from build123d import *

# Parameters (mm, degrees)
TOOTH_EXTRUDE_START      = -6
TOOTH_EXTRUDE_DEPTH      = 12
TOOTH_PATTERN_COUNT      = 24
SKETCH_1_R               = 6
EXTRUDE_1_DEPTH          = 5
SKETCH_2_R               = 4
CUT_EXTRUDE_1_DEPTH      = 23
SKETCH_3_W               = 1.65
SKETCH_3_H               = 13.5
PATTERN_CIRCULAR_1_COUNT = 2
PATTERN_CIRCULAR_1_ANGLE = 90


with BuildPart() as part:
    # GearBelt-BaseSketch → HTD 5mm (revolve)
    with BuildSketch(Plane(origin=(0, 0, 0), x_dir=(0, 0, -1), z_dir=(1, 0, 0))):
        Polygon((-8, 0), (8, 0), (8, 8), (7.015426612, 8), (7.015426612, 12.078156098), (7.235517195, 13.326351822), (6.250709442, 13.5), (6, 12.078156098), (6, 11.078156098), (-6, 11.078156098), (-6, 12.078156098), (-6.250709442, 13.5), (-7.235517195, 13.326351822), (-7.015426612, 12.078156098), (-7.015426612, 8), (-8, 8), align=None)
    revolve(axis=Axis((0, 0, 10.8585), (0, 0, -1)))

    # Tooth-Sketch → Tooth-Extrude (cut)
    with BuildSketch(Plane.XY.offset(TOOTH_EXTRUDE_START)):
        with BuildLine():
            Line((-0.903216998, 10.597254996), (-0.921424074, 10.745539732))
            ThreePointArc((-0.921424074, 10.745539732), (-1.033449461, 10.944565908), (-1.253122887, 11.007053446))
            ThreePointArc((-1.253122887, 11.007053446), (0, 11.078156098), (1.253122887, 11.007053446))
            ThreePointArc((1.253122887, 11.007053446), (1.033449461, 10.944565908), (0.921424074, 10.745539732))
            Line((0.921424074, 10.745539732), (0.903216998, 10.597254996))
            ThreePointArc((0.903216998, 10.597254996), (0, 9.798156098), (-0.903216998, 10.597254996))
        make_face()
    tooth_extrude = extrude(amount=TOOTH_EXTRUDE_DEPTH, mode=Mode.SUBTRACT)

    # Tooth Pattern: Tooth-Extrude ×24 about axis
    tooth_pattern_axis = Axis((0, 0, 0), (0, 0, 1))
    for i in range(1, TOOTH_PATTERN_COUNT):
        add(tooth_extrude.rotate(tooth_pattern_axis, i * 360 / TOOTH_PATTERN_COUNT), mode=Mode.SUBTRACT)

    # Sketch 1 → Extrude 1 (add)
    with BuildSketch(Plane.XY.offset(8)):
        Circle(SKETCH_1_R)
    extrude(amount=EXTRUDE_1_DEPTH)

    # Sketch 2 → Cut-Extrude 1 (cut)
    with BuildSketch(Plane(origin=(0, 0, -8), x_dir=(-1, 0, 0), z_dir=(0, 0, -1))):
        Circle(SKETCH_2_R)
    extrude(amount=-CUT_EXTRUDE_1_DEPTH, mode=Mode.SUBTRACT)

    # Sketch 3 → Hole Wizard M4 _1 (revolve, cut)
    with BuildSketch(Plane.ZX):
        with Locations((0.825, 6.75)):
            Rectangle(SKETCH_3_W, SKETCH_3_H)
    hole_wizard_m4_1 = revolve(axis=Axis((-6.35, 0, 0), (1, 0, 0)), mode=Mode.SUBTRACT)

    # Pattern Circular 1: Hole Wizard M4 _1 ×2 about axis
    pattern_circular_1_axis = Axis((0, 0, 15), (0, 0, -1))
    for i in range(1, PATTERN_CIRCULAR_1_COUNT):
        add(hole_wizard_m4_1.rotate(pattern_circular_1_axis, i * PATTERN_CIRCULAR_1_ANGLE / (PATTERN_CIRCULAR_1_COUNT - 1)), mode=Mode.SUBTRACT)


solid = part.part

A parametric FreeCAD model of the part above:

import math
import FreeCAD as App
import Part
import Sketcher

V = App.Vector
Q = App.Units.Quantity

doc = App.newDocument("Part")
params = doc.addObject("Spreadsheet::Sheet", "Params")
for row, (alias, value) in enumerate([
    ("sketch1_width", "8 mm"),
    ("sketch1_width2", "1 mm"),
    ("sketch1_height", "16 mm"),
    ("sketch1_height2", "12 mm"),
    ("sketch1_length", "1 mm"),
    ("revolution_angle", "360 deg"),
    ("sketch2_radius", "0.3 mm"),
    ("sketch2_radius2", "0.91 mm"),
    ("pocket1_length", "12 mm"),
    ("sketch3_diameter", "12 mm"),
    ("pad1_length", "5 mm"),
    ("sketch4_diameter", "8 mm"),
    ("pocket2_length", "23 mm"),
    ("sketch5_width", "13.5 mm"),
    ("sketch5_height", "1.65 mm"),
    ("groove_angle", "360 deg"),
], start=1):
    params.set(f"A{row}", alias)
    params.set(f"B{row}", "=" + value)
    params.setAlias(f"B{row}", alias)

body = doc.addObject("PartDesign::Body", "Body")

# Sketch on YZ plane
sketch1 = doc.addObject("Sketcher::SketchObject", "Sketch")
body.addObject(sketch1)
sketch1.AttachmentSupport = (doc.YZ_Plane, [""])
sketch1.MapMode = "FlatFace"
sketch1.addGeometry([
    Part.LineSegment(V(0, 8, 0), V(0, -8, 0)),  # 0
    Part.LineSegment(V(0, -8, 0), V(8, -8, 0)),  # 1
    Part.LineSegment(V(8, -8, 0), V(8, -7, 0)),  # 2
    Part.LineSegment(V(8, -7, 0), V(12.1, -7, 0)),  # 3
    Part.LineSegment(V(12.1, -7, 0), V(13.3, -7.2, 0)),  # 4
    Part.LineSegment(V(13.3, -7.2, 0), V(13.5, -6.3, 0)),  # 5
    Part.LineSegment(V(13.5, -6.3, 0), V(12.1, -6, 0)),  # 6
    Part.LineSegment(V(12.1, -6, 0), V(11.1, -6, 0)),  # 7
    Part.LineSegment(V(11.1, -6, 0), V(11.1, 6, 0)),  # 8
    Part.LineSegment(V(11.1, 6, 0), V(12.1, 6, 0)),  # 9
    Part.LineSegment(V(12.1, 6, 0), V(13.5, 6.3, 0)),  # 10
    Part.LineSegment(V(13.5, 6.3, 0), V(13.3, 7.2, 0)),  # 11
    Part.LineSegment(V(13.3, 7.2, 0), V(12.1, 7, 0)),  # 12
    Part.LineSegment(V(12.1, 7, 0), V(8, 7, 0)),  # 13
    Part.LineSegment(V(8, 7, 0), V(8, 8, 0)),  # 14
    Part.LineSegment(V(8, 8, 0), V(0, 8, 0)),  # 15
], False)
sketch1.addConstraint([
    Sketcher.Constraint("Coincident", 0, 2, 1, 1),
    Sketcher.Constraint("Coincident", 1, 2, 2, 1),
    Sketcher.Constraint("Coincident", 2, 2, 3, 1),
    Sketcher.Constraint("Coincident", 3, 2, 4, 1),
    Sketcher.Constraint("Coincident", 4, 2, 5, 1),
    Sketcher.Constraint("Coincident", 5, 2, 6, 1),
    Sketcher.Constraint("Coincident", 6, 2, 7, 1),
    Sketcher.Constraint("Coincident", 7, 2, 8, 1),
    Sketcher.Constraint("Coincident", 8, 2, 9, 1),
    Sketcher.Constraint("Coincident", 9, 2, 10, 1),
    Sketcher.Constraint("Coincident", 10, 2, 11, 1),
    Sketcher.Constraint("Coincident", 11, 2, 12, 1),
    Sketcher.Constraint("Coincident", 12, 2, 13, 1),
    Sketcher.Constraint("Coincident", 13, 2, 14, 1),
    Sketcher.Constraint("Coincident", 14, 2, 15, 1),
    Sketcher.Constraint("Coincident", 15, 2, 0, 1),
    Sketcher.Constraint("Vertical", 0),
    Sketcher.Constraint("Horizontal", 1),
    Sketcher.Constraint("Vertical", 2),
    Sketcher.Constraint("Horizontal", 3),
    Sketcher.Constraint("Horizontal", 7),
    Sketcher.Constraint("Vertical", 8),
    Sketcher.Constraint("Horizontal", 9),
    Sketcher.Constraint("Horizontal", 13),
    Sketcher.Constraint("Vertical", 14),
    Sketcher.Constraint("Horizontal", 15),
    Sketcher.Constraint("Symmetric", 0, 2, 15, 2, -1, 1),
    Sketcher.Constraint("Symmetric", 6, 2, 9, 2, -1),
    Sketcher.Constraint("Symmetric", 5, 2, 10, 2, -1),
    Sketcher.Constraint("Symmetric", 4, 2, 11, 2, -1),
    Sketcher.Constraint("Symmetric", 3, 2, 12, 2, -1),
    Sketcher.Constraint("Perpendicular", 4, 5),
    Sketcher.Constraint("Perpendicular", 5, 6),
    Sketcher.Constraint("Vertical", 3, 2, 6, 2),
    Sketcher.Constraint("Vertical", 2, 2, 13, 2),
    Sketcher.Constraint("DistanceX", 1, 1, 1, 2, Q("8 mm")),
    Sketcher.Constraint("DistanceX", 7, 2, 7, 1, Q("1 mm")),
    Sketcher.Constraint("DistanceY", 0, 2, 0, 1, Q("16 mm")),
    Sketcher.Constraint("DistanceY", 8, 1, 8, 2, Q("12 mm")),
    Sketcher.Constraint("Angle", 4, Q("-10 deg")),
    Sketcher.Constraint("Distance", 5, Q("1 mm")),
    Sketcher.Constraint("DistanceX", -1, 1, 5, 2, Q("13.5 mm")),
    Sketcher.Constraint("Distance", 4, Q("1.267451 mm")),
])
sketch1.setExpression("Constraints[35]", "Params.sketch1_width")
sketch1.setExpression("Constraints[36]", "Params.sketch1_width2")
sketch1.setExpression("Constraints[37]", "Params.sketch1_height")
sketch1.setExpression("Constraints[38]", "Params.sketch1_height2")
sketch1.setExpression("Constraints[40]", "Params.sketch1_length")
revolution = doc.addObject("PartDesign::Revolution", "Revolution")
body.addObject(revolution)
revolution.Profile = sketch1
revolution.ReferenceAxis = (sketch1, ["V_Axis"])
revolution.setExpression("Angle", "Params.revolution_angle")

# Sketch on XY plane
sketch2 = doc.addObject("Sketcher::SketchObject", "Sketch001")
body.addObject(sketch2)
sketch2.AttachmentSupport = (doc.XY_Plane, [""])
sketch2.MapMode = "FlatFace"
sketch2.AttachmentOffset = App.Placement(V(0, 0, -6), App.Rotation())
sketch2.addGeometry([
    Part.LineSegment(V(-0.92, 10.75, 0), V(-0.9, 10.6, 0)),  # 0
    Part.ArcOfCircle(Part.Circle(V(0, 10.71, 0), V(0, 0, 1), 0.91), math.radians(-173), math.radians(-7)),  # 1
    Part.LineSegment(V(0.9, 10.6, 0), V(0.92, 10.75, 0)),  # 2
    Part.ArcOfCircle(Part.Circle(V(1.22, 10.71, 0), V(0, 0, 1), 0.3), math.radians(84), math.radians(173)),  # 3
    Part.ArcOfCircle(Part.Circle(V(0, 0, 0), V(0, 0, 1), 11.08), math.radians(83.5), math.radians(96.5)),  # 4
    Part.ArcOfCircle(Part.Circle(V(-1.22, 10.71, 0), V(0, 0, 1), 0.3), math.radians(7), math.radians(96)),  # 5
], False)
sketch2.addConstraint([
    Sketcher.Constraint("Tangent", 0, 2, 1, 1),
    Sketcher.Constraint("Tangent", 1, 2, 2, 1),
    Sketcher.Constraint("Tangent", 2, 2, 3, 2),
    Sketcher.Constraint("Tangent", 3, 1, 4, 1),
    Sketcher.Constraint("Tangent", 4, 2, 5, 2),
    Sketcher.Constraint("Tangent", 5, 1, 0, 1),
    Sketcher.Constraint("Coincident", 4, 3, -1, 1),
    Sketcher.Constraint("Equal", 3, 5),
    Sketcher.Constraint("Symmetric", 0, 2, 1, 2, -2),
    Sketcher.Constraint("Radius", 3, Q("0.3 mm")),
    Sketcher.Constraint("Angle", 0, Q("-83 deg")),
    Sketcher.Constraint("Radius", 1, Q("0.91 mm")),
    Sketcher.Constraint("Radius", 4, Q("11.078156 mm")),
    Sketcher.Constraint("Distance", 0, Q("0.149398 mm")),
])
sketch2.setExpression("Constraints[9]", "Params.sketch2_radius")
sketch2.setExpression("Constraints[11]", "Params.sketch2_radius2")
pocket1 = doc.addObject("PartDesign::Pocket", "Pocket")
body.addObject(pocket1)
pocket1.Profile = sketch2
pocket1.setExpression("Length", "Params.pocket1_length")
pocket1.Reversed = True
doc.recompute()

polarpattern = doc.addObject("PartDesign::PolarPattern", "PolarPattern")
body.addObject(polarpattern)
polarpattern.Originals = [pocket1]
polarpattern.Axis = (doc.Z_Axis, [""])
polarpattern.Angle = 360
polarpattern.Occurrences = 24
body.Tip = polarpattern

# Sketch on XY plane
sketch3 = doc.addObject("Sketcher::SketchObject", "Sketch002")
body.addObject(sketch3)
sketch3.AttachmentSupport = (doc.XY_Plane, [""])
sketch3.MapMode = "FlatFace"
sketch3.AttachmentOffset = App.Placement(V(0, 0, 8), App.Rotation())
sketch3.addGeometry(Part.Circle(V(0, 0, 0), V(0, 0, 1), 6), False)
sketch3.addConstraint([
    Sketcher.Constraint("Coincident", 0, 3, -1, 1),
    Sketcher.Constraint("Diameter", 0, Q("12 mm")),
])
sketch3.setExpression("Constraints[1]", "Params.sketch3_diameter")
pad1 = doc.addObject("PartDesign::Pad", "Pad")
body.addObject(pad1)
pad1.Profile = sketch3
pad1.setExpression("Length", "Params.pad1_length")

# Sketch on XY plane
sketch4 = doc.addObject("Sketcher::SketchObject", "Sketch003")
body.addObject(sketch4)
sketch4.AttachmentSupport = (doc.XY_Plane, [""])
sketch4.MapMode = "FlatFace"
sketch4.AttachmentOffset = App.Placement(V(0, 0, -8), App.Rotation())
sketch4.addGeometry(Part.Circle(V(0, 0, 0), V(0, 0, 1), 4), False)
sketch4.addConstraint([
    Sketcher.Constraint("Coincident", 0, 3, -1, 1),
    Sketcher.Constraint("Diameter", 0, Q("8 mm")),
])
sketch4.setExpression("Constraints[1]", "Params.sketch4_diameter")
pocket2 = doc.addObject("PartDesign::Pocket", "Pocket001")
body.addObject(pocket2)
pocket2.Profile = sketch4
pocket2.setExpression("Length", "Params.pocket2_length")
pocket2.Reversed = True

# Sketch on XZ plane
sketch5 = doc.addObject("Sketcher::SketchObject", "Sketch004")
body.addObject(sketch5)
sketch5.AttachmentSupport = (doc.XZ_Plane, [""])
sketch5.MapMode = "FlatFace"
sketch5.addGeometry([
    Part.LineSegment(V(13.5, 0, 0), V(0, 0, 0)),
    Part.LineSegment(V(0, 0, 0), V(0, 1.6, 0)),
    Part.LineSegment(V(0, 1.6, 0), V(13.5, 1.6, 0)),
    Part.LineSegment(V(13.5, 1.6, 0), V(13.5, 0, 0)),
], False)
sketch5.addConstraint([
    Sketcher.Constraint("Coincident", 0, 2, 1, 1),
    Sketcher.Constraint("Coincident", 1, 2, 2, 1),
    Sketcher.Constraint("Coincident", 2, 2, 3, 1),
    Sketcher.Constraint("Coincident", 3, 2, 0, 1),
    Sketcher.Constraint("Horizontal", 0),
    Sketcher.Constraint("Vertical", 1),
    Sketcher.Constraint("Horizontal", 2),
    Sketcher.Constraint("Vertical", 3),
    Sketcher.Constraint("Coincident", 0, 2, -1, 1),
    Sketcher.Constraint("DistanceX", 0, 2, 0, 1, Q("13.5 mm")),
    Sketcher.Constraint("DistanceY", 1, 1, 1, 2, Q("1.65 mm")),
])
sketch5.setExpression("Constraints[9]", "Params.sketch5_width")
sketch5.setExpression("Constraints[10]", "Params.sketch5_height")
groove = doc.addObject("PartDesign::Groove", "Groove")
body.addObject(groove)
groove.Profile = sketch5
groove.ReferenceAxis = (sketch5, ["H_Axis"])
groove.setExpression("Angle", "Params.groove_angle")
doc.recompute()

polarpattern2 = doc.addObject("PartDesign::PolarPattern", "PolarPattern001")
body.addObject(polarpattern2)
polarpattern2.Originals = [groove]
polarpattern2.Axis = (doc.Z_Axis, [""])
polarpattern2.Angle = 90
polarpattern2.Occurrences = 2
polarpattern2.Reversed = True
body.Tip = polarpattern2

doc.recompute()
